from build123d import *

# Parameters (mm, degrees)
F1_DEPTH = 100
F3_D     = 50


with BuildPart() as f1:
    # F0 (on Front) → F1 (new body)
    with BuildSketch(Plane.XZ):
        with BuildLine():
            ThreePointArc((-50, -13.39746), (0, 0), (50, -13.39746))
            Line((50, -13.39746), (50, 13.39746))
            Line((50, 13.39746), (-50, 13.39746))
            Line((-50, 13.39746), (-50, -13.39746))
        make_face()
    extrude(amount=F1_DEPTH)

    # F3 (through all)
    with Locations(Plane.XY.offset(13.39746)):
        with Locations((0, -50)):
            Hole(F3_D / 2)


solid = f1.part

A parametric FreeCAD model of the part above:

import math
import FreeCAD as App
import Part
import Sketcher

doc = App.newDocument("Part")
body = doc.addObject("PartDesign::Body", "Body")

sketch1 = body.newObject("Sketcher::SketchObject", "Sketch")
sketch1.AttachmentSupport = (doc.getObject("XZ_Plane"), [""])
sketch1.MapMode = "FlatFace"
sketch1.addGeometry(Part.ArcOfCircle(Part.Circle(App.Vector(0, -100, 0), App.Vector(0, 0, 1), 100), math.radians(60), math.radians(120)), False)
sketch1.addGeometry(Part.LineSegment(App.Vector(50, -13, 0), App.Vector(50, 13, 0)), False)
sketch1.addGeometry(Part.LineSegment(App.Vector(50, 13, 0), App.Vector(-50, 13, 0)), False)
sketch1.addGeometry(Part.LineSegment(App.Vector(-50, 13, 0), App.Vector(-50, -13, 0)), False)
sketch1.addConstraint(Sketcher.Constraint("Coincident", 0, 1, 1, 1))
sketch1.addConstraint(Sketcher.Constraint("Coincident", 1, 2, 2, 1))
sketch1.addConstraint(Sketcher.Constraint("Coincident", 2, 2, 3, 1))
sketch1.addConstraint(Sketcher.Constraint("Coincident", 3, 2, 0, 2))
sketch1.addConstraint(Sketcher.Constraint("Vertical", 1))
sketch1.addConstraint(Sketcher.Constraint("Horizontal", 2))
sketch1.addConstraint(Sketcher.Constraint("Vertical", 3))
sketch1.addConstraint(Sketcher.Constraint("Symmetric", 0, 1, 2, 2, -1, 1))
sketch1.addConstraint(Sketcher.Constraint("PointOnObject", 0, 3, -2))
sketch1.addConstraint(Sketcher.Constraint("DistanceX", 2, 2, 2, 1, 100.0))
sketch1.addConstraint(Sketcher.Constraint("Radius", 0, 99.999998))
sketch1.addConstraint(Sketcher.Constraint("DistanceY", 1, 1, 1, 2, 26.79492))
pad1 = body.newObject("PartDesign::Pad", "Pad")
pad1.Profile = sketch1
pad1.Length = 100

sketch2 = body.newObject("Sketcher::SketchObject", "Sketch001")
sketch2.AttachmentSupport = (doc.getObject("XY_Plane"), [""])
sketch2.MapMode = "FlatFace"
sketch2.AttachmentOffset = App.Placement(App.Vector(0, 0, 13.39746), App.Rotation())
sketch2.addGeometry(Part.Circle(App.Vector(0, -50, 0), App.Vector(0, 0, 1), 25), False)
sketch2.addConstraint(Sketcher.Constraint("PointOnObject", 0, 3, -2))
sketch2.addConstraint(Sketcher.Constraint("Diameter", 0, 50.0))
sketch2.addConstraint(Sketcher.Constraint("DistanceY", 0, 3, -1, 1, 50.0))
doc.recompute()
hole = body.newObject("PartDesign::Hole", "Hole")
hole.Profile = sketch2
hole.ThreadType = "None"
hole.Diameter = 50
hole.DepthType = "ThroughAll"

doc.recompute()
